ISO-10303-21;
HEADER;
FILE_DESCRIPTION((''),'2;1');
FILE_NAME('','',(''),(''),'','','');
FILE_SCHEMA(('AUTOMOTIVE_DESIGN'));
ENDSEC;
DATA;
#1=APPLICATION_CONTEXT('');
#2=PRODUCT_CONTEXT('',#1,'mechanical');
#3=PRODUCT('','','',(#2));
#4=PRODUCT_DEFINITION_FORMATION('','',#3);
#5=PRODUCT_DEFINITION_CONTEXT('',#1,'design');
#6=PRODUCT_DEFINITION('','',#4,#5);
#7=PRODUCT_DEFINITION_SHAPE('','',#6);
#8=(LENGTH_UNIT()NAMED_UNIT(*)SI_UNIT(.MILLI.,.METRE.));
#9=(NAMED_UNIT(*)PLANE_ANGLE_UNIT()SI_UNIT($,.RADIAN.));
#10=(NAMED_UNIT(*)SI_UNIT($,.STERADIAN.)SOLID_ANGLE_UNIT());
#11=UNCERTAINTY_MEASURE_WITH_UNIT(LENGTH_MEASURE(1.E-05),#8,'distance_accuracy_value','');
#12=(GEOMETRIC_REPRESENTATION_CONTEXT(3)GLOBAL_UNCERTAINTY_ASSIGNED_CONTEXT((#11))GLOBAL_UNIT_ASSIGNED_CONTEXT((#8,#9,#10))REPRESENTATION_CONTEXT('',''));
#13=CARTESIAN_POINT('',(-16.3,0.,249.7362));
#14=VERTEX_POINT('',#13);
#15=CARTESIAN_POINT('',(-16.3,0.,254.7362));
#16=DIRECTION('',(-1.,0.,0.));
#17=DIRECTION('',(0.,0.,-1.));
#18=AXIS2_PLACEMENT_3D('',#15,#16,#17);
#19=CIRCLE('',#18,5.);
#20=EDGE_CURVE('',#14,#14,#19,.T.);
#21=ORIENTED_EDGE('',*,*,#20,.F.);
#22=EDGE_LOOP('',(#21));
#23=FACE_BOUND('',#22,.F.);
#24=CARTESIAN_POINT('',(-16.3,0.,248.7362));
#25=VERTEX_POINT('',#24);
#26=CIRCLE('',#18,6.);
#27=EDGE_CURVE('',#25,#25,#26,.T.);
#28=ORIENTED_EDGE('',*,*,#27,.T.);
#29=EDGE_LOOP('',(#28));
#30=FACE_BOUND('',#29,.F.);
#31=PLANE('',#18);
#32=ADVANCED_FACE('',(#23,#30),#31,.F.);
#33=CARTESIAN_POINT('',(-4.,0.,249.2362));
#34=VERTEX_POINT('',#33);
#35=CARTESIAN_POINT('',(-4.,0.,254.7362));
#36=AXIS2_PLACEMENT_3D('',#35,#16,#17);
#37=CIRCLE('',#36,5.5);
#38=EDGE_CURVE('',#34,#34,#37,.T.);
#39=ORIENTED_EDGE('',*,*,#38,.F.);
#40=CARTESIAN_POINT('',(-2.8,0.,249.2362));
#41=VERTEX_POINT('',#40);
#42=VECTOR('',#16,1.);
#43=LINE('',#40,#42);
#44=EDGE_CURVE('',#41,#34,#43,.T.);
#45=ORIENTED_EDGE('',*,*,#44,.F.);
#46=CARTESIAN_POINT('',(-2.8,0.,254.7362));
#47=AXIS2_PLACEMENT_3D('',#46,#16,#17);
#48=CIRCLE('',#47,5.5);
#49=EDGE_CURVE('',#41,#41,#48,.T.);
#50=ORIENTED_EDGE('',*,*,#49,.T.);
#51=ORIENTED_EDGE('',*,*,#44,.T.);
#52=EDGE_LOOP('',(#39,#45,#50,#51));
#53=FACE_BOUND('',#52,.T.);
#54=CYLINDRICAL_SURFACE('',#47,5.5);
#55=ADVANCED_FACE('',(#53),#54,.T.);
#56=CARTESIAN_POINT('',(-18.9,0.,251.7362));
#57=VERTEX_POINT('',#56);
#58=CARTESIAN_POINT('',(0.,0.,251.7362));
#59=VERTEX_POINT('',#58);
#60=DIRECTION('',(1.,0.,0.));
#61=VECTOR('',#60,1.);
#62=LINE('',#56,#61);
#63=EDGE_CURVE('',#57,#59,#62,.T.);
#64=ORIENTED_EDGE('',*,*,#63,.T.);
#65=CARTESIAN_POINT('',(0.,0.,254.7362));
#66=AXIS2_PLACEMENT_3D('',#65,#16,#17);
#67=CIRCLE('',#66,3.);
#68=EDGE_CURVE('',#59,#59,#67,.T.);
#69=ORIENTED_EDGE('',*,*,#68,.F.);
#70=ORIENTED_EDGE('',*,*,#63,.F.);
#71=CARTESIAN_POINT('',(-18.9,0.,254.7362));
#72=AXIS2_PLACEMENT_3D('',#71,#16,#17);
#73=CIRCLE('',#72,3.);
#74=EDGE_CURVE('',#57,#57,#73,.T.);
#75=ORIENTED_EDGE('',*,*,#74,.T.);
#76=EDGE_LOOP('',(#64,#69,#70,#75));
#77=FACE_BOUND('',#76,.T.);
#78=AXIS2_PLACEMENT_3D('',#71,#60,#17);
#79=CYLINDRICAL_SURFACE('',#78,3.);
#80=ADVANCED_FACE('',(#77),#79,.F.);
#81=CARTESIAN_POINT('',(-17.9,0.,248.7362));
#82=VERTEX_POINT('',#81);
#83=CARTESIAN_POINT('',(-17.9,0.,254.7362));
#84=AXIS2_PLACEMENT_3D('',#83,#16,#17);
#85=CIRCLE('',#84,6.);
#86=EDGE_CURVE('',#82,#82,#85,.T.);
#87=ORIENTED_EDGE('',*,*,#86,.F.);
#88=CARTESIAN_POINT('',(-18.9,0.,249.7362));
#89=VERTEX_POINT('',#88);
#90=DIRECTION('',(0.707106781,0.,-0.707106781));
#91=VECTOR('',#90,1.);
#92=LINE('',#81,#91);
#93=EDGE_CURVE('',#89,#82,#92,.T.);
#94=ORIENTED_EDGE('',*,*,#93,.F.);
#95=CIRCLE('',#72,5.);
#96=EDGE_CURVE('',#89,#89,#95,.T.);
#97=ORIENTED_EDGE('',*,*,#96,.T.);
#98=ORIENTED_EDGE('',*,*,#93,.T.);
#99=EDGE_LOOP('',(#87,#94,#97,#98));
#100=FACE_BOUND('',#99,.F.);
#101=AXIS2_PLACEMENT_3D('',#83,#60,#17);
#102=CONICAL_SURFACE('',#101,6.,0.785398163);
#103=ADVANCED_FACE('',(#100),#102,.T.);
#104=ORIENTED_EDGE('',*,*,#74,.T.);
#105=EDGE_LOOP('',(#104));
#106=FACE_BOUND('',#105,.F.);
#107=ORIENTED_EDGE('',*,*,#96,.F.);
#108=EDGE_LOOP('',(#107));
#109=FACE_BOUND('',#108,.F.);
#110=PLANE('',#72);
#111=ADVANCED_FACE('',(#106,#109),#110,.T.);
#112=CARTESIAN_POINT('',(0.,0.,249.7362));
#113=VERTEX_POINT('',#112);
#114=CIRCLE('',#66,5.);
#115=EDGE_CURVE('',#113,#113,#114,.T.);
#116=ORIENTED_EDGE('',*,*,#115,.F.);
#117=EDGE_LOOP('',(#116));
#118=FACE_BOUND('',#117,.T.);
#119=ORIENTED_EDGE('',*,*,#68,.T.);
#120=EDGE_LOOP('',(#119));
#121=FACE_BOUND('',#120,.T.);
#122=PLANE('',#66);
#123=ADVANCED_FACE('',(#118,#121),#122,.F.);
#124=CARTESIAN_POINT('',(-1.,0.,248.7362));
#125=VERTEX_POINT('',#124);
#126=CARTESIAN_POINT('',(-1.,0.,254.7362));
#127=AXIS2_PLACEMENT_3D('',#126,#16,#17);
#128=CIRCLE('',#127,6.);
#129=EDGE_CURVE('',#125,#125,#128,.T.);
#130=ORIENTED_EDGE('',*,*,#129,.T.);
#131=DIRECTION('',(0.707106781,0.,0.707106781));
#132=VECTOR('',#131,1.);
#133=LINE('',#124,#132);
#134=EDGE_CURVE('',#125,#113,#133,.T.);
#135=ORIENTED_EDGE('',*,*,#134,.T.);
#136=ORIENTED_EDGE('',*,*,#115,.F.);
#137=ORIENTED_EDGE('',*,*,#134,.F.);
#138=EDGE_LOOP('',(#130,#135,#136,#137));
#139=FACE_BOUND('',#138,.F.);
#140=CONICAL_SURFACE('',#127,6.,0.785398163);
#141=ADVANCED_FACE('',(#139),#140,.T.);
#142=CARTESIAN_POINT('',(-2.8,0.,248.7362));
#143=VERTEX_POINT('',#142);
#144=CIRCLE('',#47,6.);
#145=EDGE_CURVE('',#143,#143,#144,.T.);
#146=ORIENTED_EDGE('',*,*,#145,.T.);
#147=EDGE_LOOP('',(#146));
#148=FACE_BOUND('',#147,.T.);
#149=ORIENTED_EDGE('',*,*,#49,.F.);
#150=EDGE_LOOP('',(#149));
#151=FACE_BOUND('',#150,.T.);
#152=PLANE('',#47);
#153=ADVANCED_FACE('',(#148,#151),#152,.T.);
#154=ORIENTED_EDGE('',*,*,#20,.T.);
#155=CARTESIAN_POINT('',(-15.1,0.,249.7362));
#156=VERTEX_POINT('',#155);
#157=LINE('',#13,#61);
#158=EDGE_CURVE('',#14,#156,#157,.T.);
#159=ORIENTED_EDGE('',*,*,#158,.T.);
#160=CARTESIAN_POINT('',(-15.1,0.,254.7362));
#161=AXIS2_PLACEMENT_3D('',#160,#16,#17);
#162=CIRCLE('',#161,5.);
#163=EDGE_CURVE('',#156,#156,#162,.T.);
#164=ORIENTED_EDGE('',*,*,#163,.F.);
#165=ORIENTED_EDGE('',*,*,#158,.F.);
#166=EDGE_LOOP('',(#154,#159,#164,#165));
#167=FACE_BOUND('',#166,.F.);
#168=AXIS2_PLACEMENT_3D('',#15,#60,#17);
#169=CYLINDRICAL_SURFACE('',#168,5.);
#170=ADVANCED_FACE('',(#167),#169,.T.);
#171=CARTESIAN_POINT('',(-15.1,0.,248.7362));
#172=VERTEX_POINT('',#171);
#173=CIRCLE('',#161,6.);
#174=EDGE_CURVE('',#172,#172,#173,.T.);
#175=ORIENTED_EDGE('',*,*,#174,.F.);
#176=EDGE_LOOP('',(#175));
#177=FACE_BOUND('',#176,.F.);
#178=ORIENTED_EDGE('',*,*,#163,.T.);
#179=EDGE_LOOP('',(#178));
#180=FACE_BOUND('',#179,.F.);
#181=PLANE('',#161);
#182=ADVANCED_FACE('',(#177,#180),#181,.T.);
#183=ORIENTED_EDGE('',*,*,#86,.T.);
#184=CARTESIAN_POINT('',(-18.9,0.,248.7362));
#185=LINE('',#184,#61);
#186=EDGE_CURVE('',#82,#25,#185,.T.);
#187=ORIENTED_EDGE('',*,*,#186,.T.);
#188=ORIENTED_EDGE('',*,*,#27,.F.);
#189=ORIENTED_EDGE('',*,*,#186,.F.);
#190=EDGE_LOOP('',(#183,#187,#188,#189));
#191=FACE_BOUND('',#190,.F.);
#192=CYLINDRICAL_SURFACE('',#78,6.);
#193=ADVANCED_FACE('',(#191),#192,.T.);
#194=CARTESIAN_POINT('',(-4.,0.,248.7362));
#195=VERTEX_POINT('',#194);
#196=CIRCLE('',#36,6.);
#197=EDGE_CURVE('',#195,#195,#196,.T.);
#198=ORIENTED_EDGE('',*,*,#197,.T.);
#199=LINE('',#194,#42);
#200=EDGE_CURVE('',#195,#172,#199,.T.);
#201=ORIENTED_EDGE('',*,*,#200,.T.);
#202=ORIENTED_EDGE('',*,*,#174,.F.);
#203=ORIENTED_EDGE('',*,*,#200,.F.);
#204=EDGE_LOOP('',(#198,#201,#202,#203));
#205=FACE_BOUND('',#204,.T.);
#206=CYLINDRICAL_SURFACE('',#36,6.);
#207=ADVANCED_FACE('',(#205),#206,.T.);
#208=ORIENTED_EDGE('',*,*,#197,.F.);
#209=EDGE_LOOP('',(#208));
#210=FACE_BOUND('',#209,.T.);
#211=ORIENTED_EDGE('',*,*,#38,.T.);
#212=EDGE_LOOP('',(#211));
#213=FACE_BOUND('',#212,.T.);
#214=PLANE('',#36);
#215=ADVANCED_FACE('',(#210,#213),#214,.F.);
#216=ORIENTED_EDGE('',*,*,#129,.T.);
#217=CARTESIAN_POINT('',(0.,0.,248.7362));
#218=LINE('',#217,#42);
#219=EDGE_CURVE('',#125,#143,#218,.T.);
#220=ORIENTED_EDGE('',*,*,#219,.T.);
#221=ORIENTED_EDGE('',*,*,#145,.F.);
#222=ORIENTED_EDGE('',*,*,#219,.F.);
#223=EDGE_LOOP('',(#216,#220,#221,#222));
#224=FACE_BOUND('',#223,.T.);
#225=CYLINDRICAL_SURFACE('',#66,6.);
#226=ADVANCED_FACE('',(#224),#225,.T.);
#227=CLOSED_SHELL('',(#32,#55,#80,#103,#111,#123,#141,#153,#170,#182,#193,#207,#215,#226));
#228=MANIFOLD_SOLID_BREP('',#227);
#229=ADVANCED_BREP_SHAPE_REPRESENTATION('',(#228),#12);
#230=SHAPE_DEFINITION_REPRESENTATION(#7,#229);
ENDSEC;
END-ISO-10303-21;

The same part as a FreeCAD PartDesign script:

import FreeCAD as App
import Part
import Sketcher


def edges_at(feature, points):
    """Names of the edges that pass closest to the given points."""
    edges = feature.Shape.Edges
    near = lambda p: min(range(len(edges)), key=lambda i: edges[i].distToShape(Part.Vertex(*p))[0])
    return sorted({f"Edge{near(p) + 1}" for p in points})

doc = App.newDocument("Part")
body = doc.addObject("PartDesign::Body", "Body")

# Sketch on XZ plane
sketch1 = body.newObject("Sketcher::SketchObject", "Sketch")
sketch1.AttachmentSupport = (doc.getObject("XZ_Plane"), [""])
sketch1.MapMode = "FlatFace"
sketch1.addGeometry(Part.LineSegment(App.Vector(-18.9, 251.7, 0), App.Vector(0, 251.7, 0)), False)
sketch1.addGeometry(Part.LineSegment(App.Vector(0, 251.7, 0), App.Vector(0, 248.7, 0)), False)
sketch1.addGeometry(Part.LineSegment(App.Vector(0, 248.7, 0), App.Vector(-2.8, 248.7, 0)), False)
sketch1.addGeometry(Part.LineSegment(App.Vector(-2.8, 248.7, 0), App.Vector(-2.8, 249.2, 0)), False)
sketch1.addGeometry(Part.LineSegment(App.Vector(-2.8, 249.2, 0), App.Vector(-4, 249.2, 0)), False)
sketch1.addGeometry(Part.LineSegment(App.Vector(-4, 249.2, 0), App.Vector(-4, 248.7, 0)), False)
sketch1.addGeometry(Part.LineSegment(App.Vector(-4, 248.7, 0), App.Vector(-15.1, 248.7, 0)), False)
sketch1.addGeometry(Part.LineSegment(App.Vector(-15.1, 248.7, 0), App.Vector(-15.1, 249.7, 0)), False)
sketch1.addGeometry(Part.LineSegment(App.Vector(-15.1, 249.7, 0), App.Vector(-16.3, 249.7, 0)), False)
sketch1.addGeometry(Part.LineSegment(App.Vector(-16.3, 249.7, 0), App.Vector(-16.3, 248.7, 0)), False)
sketch1.addGeometry(Part.LineSegment(App.Vector(-16.3, 248.7, 0), App.Vector(-18.9, 248.7, 0)), False)
sketch1.addGeometry(Part.LineSegment(App.Vector(-18.9, 248.7, 0), App.Vector(-18.9, 251.7, 0)), False)
sketch1.addGeometry(Part.LineSegment(App.Vector(0, 254.7, 0), App.Vector(-18.9, 254.7, 0)), True)  # axis
sketch1.addConstraint(Sketcher.Constraint("Coincident", 0, 2, 1, 1))
sketch1.addConstraint(Sketcher.Constraint("Coincident", 1, 2, 2, 1))
sketch1.addConstraint(Sketcher.Constraint("Coincident", 2, 2, 3, 1))
sketch1.addConstraint(Sketcher.Constraint("Coincident", 3, 2, 4, 1))
sketch1.addConstraint(Sketcher.Constraint("Coincident", 4, 2, 5, 1))
sketch1.addConstraint(Sketcher.Constraint("Coincident", 5, 2, 6, 1))
sketch1.addConstraint(Sketcher.Constraint("Coincident", 6, 2, 7, 1))
sketch1.addConstraint(Sketcher.Constraint("Coincident", 7, 2, 8, 1))
sketch1.addConstraint(Sketcher.Constraint("Coincident", 8, 2, 9, 1))
sketch1.addConstraint(Sketcher.Constraint("Coincident", 9, 2, 10, 1))
sketch1.addConstraint(Sketcher.Constraint("Coincident", 10, 2, 11, 1))
sketch1.addConstraint(Sketcher.Constraint("Coincident", 11, 2, 0, 1))
sketch1.addConstraint(Sketcher.Constraint("Horizontal", 0))
sketch1.addConstraint(Sketcher.Constraint("Vertical", 1))
sketch1.addConstraint(Sketcher.Constraint("Horizontal", 2))
sketch1.addConstraint(Sketcher.Constraint("Vertical", 3))
sketch1.addConstraint(Sketcher.Constraint("Horizontal", 4))
sketch1.addConstraint(Sketcher.Constraint("Vertical", 5))
sketch1.addConstraint(Sketcher.Constraint("Horizontal", 6))
sketch1.addConstraint(Sketcher.Constraint("Vertical", 7))
sketch1.addConstraint(Sketcher.Constraint("Horizontal", 8))
sketch1.addConstraint(Sketcher.Constraint("Vertical", 9))
sketch1.addConstraint(Sketcher.Constraint("Horizontal", 10))
sketch1.addConstraint(Sketcher.Constraint("Vertical", 11))
sketch1.addConstraint(Sketcher.Constraint("Horizontal", 12))
sketch1.addConstraint(Sketcher.Constraint("PointOnObject", 0, 2, -2))
sketch1.addConstraint(Sketcher.Constraint("PointOnObject", 12, 1, -2))
sketch1.addConstraint(Sketcher.Constraint("Horizontal", 2, 2, 5, 2))
sketch1.addConstraint(Sketcher.Constraint("Horizontal", 6, 2, 9, 2))
sketch1.addConstraint(Sketcher.Constraint("Vertical", 11, 2, 12, 2))
sketch1.addConstraint(Sketcher.Constraint("Equal", 4, 8))
sketch1.addConstraint(Sketcher.Constraint("DistanceY", 1, 2, 1, 1, 3.0))
sketch1.addConstraint(Sketcher.Constraint("DistanceY", 7, 1, 7, 2, 1.0))
sketch1.addConstraint(Sketcher.Constraint("DistanceX", 0, 1, 0, 2, 18.9))
sketch1.addConstraint(Sketcher.Constraint("DistanceX", 2, 2, 2, 1, 2.8))
sketch1.addConstraint(Sketcher.Constraint("DistanceX", 4, 2, 4, 1, 1.2))
sketch1.addConstraint(Sketcher.Constraint("DistanceX", 10, 2, 10, 1, 2.6))
sketch1.addConstraint(Sketcher.Constraint("DistanceY", 0, 2, 12, 1, 3.0))
sketch1.addConstraint(Sketcher.Constraint("DistanceY", 3, 1, 3, 2, 0.5))
sketch1.addConstraint(Sketcher.Constraint("DistanceY", -1, 1, 0, 2, 251.7362))
revolution = body.newObject("PartDesign::Revolution", "Revolution")
revolution.Profile = sketch1
revolution.ReferenceAxis = (sketch1, ["Axis0"])
revolution.Angle = 360
doc.recompute()

chamfer = body.newObject("PartDesign::Chamfer", "Chamfer")
chamfer.Base = (revolution, edges_at(revolution, [(0, 0, 260.736), (-18.9, 0, 260.736)]))
chamfer.Size = 1

doc.recompute()
